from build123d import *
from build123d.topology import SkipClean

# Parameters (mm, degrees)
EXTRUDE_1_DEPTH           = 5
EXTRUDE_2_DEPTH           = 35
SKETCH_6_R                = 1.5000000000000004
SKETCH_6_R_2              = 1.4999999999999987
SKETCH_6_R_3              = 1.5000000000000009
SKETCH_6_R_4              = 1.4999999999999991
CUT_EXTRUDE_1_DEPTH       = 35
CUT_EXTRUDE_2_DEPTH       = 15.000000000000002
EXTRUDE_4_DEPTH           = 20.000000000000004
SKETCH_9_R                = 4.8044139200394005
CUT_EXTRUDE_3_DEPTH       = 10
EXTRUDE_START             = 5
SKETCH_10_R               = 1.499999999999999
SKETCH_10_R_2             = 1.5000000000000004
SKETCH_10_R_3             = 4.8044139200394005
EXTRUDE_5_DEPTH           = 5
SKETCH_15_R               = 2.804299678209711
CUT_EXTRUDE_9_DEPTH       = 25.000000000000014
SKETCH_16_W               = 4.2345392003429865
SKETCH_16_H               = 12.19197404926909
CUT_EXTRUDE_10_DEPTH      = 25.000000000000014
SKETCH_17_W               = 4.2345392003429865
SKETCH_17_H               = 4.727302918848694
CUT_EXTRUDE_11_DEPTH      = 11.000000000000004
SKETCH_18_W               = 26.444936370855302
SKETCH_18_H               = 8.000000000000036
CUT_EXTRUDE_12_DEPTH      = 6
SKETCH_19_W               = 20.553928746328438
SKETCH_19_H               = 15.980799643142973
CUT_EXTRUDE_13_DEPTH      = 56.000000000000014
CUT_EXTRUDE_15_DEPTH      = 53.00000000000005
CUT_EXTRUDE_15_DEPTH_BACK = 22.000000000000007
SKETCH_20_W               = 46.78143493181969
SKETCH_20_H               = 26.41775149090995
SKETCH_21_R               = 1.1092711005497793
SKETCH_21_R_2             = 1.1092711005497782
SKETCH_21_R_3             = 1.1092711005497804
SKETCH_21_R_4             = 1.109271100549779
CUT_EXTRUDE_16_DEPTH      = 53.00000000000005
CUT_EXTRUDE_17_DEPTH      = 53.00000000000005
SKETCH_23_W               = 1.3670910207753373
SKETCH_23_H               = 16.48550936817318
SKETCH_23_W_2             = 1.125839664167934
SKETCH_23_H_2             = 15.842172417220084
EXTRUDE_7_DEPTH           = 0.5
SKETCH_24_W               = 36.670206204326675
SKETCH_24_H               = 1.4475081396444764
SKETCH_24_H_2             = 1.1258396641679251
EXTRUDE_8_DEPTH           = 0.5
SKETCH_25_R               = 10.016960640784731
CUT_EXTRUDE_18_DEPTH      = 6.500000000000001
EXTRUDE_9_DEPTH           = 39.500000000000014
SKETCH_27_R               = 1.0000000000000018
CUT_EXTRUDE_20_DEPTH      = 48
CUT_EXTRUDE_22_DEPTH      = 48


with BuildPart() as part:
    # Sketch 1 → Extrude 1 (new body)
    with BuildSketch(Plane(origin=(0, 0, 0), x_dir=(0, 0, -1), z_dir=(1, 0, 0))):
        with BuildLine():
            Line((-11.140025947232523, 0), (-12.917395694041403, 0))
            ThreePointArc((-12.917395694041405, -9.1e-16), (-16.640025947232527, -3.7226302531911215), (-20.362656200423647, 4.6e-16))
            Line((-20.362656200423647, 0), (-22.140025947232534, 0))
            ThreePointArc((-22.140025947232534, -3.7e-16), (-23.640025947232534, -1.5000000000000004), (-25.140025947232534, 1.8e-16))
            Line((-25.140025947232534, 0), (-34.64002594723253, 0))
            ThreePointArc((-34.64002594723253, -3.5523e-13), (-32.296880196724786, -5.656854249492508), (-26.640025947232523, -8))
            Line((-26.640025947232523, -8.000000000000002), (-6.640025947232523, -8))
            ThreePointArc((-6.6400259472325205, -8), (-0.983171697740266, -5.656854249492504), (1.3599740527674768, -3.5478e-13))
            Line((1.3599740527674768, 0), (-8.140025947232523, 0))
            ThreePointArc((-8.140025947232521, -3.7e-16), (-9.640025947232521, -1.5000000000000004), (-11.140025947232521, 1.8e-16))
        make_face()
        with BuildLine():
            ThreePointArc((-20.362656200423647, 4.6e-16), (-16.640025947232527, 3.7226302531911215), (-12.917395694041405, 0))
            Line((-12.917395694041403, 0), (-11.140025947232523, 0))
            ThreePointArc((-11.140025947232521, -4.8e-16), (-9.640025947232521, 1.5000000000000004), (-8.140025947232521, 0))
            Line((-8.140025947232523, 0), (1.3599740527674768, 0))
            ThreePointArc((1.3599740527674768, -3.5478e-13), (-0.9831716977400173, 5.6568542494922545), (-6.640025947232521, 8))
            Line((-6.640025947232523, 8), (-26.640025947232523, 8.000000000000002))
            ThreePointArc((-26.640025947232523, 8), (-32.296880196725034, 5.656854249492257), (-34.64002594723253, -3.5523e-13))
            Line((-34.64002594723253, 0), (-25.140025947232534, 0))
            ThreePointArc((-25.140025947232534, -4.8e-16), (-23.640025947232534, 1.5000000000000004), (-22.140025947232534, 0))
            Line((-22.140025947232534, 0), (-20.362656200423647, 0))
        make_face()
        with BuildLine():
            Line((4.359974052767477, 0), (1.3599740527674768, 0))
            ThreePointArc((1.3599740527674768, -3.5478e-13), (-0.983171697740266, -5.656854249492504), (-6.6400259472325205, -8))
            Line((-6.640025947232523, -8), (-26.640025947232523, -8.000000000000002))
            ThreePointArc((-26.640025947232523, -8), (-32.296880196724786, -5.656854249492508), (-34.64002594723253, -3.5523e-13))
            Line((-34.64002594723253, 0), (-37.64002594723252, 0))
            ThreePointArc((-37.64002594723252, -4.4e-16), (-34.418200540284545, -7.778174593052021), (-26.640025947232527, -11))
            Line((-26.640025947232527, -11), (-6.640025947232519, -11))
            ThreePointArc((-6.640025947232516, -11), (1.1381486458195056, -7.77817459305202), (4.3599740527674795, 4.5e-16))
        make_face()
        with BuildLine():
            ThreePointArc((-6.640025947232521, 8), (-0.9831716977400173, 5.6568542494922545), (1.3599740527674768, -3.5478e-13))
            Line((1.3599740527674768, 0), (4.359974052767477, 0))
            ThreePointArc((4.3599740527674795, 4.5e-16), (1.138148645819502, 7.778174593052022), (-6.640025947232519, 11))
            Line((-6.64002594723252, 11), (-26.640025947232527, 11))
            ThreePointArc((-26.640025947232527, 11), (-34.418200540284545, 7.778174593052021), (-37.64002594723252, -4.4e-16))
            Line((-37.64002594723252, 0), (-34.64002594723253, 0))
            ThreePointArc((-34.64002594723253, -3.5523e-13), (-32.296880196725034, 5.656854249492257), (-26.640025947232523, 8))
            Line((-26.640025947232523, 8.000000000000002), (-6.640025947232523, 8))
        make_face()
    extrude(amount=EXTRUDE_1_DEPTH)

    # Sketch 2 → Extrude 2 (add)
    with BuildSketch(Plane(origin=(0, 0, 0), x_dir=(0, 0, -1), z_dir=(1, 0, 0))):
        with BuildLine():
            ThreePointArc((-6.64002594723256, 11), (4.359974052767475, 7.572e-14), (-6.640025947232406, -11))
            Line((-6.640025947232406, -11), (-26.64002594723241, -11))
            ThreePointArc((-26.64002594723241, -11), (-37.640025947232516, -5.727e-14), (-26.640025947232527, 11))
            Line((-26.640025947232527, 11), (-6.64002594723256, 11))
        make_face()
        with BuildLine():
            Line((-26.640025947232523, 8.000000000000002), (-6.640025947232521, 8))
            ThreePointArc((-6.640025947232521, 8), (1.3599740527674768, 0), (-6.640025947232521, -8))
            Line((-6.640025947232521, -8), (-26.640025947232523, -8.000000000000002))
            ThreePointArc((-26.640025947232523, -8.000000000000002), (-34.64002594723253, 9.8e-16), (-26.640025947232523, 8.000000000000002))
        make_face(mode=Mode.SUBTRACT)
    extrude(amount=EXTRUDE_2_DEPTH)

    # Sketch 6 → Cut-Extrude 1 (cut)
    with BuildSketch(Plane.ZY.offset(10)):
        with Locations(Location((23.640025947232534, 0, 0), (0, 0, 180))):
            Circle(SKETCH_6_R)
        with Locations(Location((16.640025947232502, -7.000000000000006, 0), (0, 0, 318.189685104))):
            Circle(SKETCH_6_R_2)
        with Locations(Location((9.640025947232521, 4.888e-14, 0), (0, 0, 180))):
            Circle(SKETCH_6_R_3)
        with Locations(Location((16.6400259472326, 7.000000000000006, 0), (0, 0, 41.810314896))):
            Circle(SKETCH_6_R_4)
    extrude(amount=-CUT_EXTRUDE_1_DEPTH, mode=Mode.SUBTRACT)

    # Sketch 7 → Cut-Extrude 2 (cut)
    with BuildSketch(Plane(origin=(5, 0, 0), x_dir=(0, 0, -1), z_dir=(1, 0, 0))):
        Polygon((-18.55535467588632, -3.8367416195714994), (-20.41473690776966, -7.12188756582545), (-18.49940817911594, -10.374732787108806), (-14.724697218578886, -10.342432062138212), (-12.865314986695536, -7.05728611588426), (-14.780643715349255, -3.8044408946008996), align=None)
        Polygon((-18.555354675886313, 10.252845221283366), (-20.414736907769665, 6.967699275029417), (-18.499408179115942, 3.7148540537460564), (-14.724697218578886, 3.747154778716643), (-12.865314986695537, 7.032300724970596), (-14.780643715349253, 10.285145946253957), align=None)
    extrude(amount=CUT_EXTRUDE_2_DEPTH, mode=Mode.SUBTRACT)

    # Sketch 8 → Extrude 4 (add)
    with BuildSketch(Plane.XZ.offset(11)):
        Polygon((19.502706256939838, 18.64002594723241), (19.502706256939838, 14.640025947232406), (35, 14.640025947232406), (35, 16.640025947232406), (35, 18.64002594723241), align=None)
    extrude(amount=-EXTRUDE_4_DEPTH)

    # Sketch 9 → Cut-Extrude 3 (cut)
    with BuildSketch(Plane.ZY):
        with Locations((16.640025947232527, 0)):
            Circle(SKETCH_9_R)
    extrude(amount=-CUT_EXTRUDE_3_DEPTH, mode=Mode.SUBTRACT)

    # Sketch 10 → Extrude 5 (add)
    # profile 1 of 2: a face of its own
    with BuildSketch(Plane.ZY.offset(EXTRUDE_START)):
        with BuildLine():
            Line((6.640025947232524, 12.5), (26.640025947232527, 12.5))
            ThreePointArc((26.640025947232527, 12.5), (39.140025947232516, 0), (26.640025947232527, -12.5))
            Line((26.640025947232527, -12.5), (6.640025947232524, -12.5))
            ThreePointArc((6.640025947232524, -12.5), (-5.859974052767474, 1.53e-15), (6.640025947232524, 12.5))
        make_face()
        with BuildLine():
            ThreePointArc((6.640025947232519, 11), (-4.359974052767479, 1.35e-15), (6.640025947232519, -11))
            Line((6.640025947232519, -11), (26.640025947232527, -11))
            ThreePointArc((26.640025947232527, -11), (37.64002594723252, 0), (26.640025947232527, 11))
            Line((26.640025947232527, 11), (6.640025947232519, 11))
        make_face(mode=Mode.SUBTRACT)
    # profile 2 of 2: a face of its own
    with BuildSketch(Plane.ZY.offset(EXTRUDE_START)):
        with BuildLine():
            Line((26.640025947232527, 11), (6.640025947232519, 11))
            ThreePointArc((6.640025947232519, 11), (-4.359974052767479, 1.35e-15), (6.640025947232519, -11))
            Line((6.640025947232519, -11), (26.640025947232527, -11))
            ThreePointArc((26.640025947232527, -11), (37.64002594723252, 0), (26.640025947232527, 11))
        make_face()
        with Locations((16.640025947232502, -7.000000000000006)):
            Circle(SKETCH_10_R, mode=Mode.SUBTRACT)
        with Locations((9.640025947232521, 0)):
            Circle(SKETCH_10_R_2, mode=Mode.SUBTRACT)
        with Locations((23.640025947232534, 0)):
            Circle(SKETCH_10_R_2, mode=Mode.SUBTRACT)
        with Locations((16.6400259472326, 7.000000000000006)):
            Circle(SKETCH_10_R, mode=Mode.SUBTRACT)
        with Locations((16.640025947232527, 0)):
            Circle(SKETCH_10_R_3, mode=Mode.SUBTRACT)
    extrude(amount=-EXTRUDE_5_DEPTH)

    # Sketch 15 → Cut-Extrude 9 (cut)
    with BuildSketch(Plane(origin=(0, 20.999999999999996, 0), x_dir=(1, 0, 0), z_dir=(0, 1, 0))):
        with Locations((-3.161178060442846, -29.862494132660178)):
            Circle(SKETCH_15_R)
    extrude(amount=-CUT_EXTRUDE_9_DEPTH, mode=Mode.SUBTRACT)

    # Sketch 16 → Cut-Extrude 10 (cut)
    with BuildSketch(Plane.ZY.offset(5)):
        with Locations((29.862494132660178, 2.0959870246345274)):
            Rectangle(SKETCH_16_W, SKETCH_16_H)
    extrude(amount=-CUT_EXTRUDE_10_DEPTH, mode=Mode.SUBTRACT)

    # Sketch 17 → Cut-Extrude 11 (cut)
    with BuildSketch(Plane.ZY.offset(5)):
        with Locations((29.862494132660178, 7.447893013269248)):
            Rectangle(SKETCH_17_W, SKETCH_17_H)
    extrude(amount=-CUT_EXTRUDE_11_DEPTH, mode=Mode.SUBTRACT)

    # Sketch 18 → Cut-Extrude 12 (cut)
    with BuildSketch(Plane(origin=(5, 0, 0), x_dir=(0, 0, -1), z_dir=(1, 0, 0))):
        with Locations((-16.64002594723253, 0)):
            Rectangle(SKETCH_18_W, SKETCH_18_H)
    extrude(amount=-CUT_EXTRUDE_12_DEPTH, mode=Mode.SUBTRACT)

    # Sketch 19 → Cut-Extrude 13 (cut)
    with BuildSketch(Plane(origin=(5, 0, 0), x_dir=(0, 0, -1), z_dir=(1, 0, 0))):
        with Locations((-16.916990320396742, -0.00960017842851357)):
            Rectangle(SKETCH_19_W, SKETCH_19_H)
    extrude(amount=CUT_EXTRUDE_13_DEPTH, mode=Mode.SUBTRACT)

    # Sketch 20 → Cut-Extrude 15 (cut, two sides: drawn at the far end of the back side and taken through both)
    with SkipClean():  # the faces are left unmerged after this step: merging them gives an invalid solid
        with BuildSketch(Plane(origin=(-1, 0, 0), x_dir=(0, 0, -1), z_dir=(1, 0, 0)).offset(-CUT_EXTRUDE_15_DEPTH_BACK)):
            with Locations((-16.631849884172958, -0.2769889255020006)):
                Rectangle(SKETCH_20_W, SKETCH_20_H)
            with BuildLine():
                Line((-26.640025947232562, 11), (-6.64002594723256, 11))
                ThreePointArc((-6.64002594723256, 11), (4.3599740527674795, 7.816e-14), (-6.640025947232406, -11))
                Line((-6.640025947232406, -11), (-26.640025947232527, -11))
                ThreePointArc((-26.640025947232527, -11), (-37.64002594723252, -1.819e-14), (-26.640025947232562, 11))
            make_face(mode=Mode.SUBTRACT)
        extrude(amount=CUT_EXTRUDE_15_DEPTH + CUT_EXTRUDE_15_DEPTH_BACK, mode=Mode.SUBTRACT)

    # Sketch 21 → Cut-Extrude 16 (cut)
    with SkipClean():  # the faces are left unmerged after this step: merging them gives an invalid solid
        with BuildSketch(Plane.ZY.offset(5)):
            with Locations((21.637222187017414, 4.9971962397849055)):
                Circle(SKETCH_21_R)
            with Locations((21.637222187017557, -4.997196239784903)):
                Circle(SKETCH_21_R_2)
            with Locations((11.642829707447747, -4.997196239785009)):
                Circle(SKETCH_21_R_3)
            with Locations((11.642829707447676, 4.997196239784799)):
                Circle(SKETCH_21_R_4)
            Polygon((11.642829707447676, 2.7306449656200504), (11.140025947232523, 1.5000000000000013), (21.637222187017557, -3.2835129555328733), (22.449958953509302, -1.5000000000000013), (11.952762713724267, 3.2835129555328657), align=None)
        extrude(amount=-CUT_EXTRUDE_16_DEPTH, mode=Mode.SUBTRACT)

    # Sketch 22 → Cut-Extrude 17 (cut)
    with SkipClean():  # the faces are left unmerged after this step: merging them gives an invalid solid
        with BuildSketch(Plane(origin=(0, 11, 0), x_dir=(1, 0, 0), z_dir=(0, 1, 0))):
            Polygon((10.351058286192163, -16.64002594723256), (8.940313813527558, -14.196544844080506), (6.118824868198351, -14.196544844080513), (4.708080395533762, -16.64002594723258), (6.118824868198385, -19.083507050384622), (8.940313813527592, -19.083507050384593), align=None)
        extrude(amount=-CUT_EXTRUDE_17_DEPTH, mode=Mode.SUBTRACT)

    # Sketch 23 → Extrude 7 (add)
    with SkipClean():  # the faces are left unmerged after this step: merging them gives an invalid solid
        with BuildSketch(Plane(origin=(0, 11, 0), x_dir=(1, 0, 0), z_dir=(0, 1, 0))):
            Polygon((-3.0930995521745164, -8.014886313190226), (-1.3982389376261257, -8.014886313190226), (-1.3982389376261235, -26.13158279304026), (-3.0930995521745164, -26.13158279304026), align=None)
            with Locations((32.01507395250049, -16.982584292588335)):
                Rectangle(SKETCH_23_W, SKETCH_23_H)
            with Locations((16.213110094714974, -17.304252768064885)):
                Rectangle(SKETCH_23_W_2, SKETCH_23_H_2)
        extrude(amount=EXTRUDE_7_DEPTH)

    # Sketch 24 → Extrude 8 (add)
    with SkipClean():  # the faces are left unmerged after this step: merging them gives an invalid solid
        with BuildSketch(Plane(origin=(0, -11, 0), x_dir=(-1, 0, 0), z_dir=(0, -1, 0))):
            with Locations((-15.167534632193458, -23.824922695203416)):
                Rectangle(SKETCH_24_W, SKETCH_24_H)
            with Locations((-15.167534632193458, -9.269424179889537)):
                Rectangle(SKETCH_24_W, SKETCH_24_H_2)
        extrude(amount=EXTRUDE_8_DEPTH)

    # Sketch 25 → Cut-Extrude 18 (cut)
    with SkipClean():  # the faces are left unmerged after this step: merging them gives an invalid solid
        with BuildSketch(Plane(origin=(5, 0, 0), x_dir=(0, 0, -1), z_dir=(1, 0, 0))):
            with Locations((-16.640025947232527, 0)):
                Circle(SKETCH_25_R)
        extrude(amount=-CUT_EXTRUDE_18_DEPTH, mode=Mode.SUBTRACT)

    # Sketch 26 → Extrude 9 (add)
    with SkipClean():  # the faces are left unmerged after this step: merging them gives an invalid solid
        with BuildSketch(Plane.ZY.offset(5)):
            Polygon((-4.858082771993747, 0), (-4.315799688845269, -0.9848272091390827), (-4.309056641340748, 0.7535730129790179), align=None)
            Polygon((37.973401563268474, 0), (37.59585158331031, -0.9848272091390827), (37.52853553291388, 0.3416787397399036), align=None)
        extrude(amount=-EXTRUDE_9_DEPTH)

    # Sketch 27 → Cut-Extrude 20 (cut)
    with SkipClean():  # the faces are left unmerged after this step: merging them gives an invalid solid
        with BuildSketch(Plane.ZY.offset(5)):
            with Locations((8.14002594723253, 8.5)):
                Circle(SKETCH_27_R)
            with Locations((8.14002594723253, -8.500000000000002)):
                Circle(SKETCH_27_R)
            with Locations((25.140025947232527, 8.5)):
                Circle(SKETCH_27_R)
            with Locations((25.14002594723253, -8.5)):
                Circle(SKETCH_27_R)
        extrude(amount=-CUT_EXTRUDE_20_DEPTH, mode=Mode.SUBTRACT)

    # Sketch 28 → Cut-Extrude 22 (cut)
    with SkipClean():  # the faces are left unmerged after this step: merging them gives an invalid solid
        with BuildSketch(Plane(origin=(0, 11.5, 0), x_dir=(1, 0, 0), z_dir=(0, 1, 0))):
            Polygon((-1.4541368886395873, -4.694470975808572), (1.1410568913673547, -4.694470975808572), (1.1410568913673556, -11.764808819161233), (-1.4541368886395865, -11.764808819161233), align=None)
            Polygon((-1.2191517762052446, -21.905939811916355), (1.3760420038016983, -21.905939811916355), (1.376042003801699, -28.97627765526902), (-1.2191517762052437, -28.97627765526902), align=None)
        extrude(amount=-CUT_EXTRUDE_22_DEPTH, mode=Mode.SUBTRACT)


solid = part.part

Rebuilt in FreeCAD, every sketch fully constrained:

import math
import FreeCAD as App
import Part
import Sketcher
Q = App.Units.Quantity


def add_polygon(sketch, points):
    """Adds a closed chain of lines whose ends are joined by coincident constraints."""
    first, n = sketch.GeometryCount, len(points)
    for a, b in zip(points, points[1:] + points[:1]):
        sketch.addGeometry(Part.LineSegment(App.Vector(*a, 0), App.Vector(*b, 0)), False)
    for i in range(n):
        sketch.addConstraint(Sketcher.Constraint("Coincident", first + i, 2, first + (i + 1) % n, 1))

doc = App.newDocument("Part")
body = doc.addObject("PartDesign::Body", "Body")

sketch1 = body.newObject("Sketcher::SketchObject", "Sketch")
sketch1.AttachmentSupport = (doc.getObject("YZ_Plane"), [""])
sketch1.MapMode = "FlatFace"
sketch1.addGeometry([
    Part.LineSegment(App.Vector(-11, 26.6, 0), App.Vector(-11, 6.6, 0)),
    Part.ArcOfCircle(Part.Circle(App.Vector(0, 6.6, 0), App.Vector(0, 0, 1), 11), math.radians(180), math.radians(360)),
    Part.LineSegment(App.Vector(11, 6.6, 0), App.Vector(11, 26.6, 0)),
    Part.ArcOfCircle(Part.Circle(App.Vector(0, 26.6, 0), App.Vector(0, 0, 1), 11), math.radians(0), math.radians(180)),
    Part.Circle(App.Vector(0, 16.6, 0), App.Vector(0, 0, 1), 3.7),
    Part.Circle(App.Vector(0, 23.6, 0), App.Vector(0, 0, 1), 1.5),
    Part.Circle(App.Vector(0, 9.6, 0), App.Vector(0, 0, 1), 1.5),
], False)
sketch1.addConstraint([
    Sketcher.Constraint("Tangent", 0, 2, 1, 1),
    Sketcher.Constraint("Tangent", 1, 2, 2, 1),
    Sketcher.Constraint("Tangent", 2, 2, 3, 1),
    Sketcher.Constraint("Tangent", 3, 2, 0, 1),
    Sketcher.Constraint("Vertical", 0),
    Sketcher.Constraint("Vertical", 2),
    Sketcher.Constraint("Equal", 5, 6),
    Sketcher.Constraint("PointOnObject", 1, 3, -2),
    Sketcher.Constraint("PointOnObject", 4, 3, -2),
    Sketcher.Constraint("PointOnObject", 5, 3, -2),
    Sketcher.Constraint("PointOnObject", 6, 3, -2),
    Sketcher.Constraint("Diameter", 5, 3.0),
    Sketcher.Constraint("Radius", 1, 11.0),
    Sketcher.Constraint("DistanceY", 0, 2, 0, 1, 20.0),
    Sketcher.Constraint("DistanceY", 4, 3, 3, 3, 10.0),
    Sketcher.Constraint("DistanceY", 5, 3, 3, 3, 3.0),
    Sketcher.Constraint("DistanceY", 1, 3, 6, 3, 3.0),
    Sketcher.Constraint("Diameter", 4, 7.445261),
    Sketcher.Constraint("DistanceY", -1, 1, 1, 3, 6.640026),
])
pad1 = body.newObject("PartDesign::Pad", "Pad")
pad1.Profile = sketch1
pad1.Length = 5

sketch2 = body.newObject("Sketcher::SketchObject", "Sketch001")
sketch2.AttachmentSupport = (doc.getObject("YZ_Plane"), [""])
sketch2.MapMode = "FlatFace"
sketch2.addGeometry([
    Part.ArcOfCircle(Part.Circle(App.Vector(0, 7, 0), App.Vector(0, 0, 1), 11), math.radians(180), math.radians(360)),
    Part.LineSegment(App.Vector(11, 7, 0), App.Vector(11, 27, 0)),
    Part.ArcOfCircle(Part.Circle(App.Vector(0, 27, 0), App.Vector(0, 0, 1), 11), math.radians(0), math.radians(180)),
    Part.LineSegment(App.Vector(-11, 27, 0), App.Vector(-11, 7, 0)),
    Part.LineSegment(App.Vector(8, 27, 0), App.Vector(8, 7, 0)),
    Part.ArcOfCircle(Part.Circle(App.Vector(0, 7, 0), App.Vector(0, 0, 1), 8), math.radians(180), math.radians(360)),
    Part.LineSegment(App.Vector(-8, 7, 0), App.Vector(-8, 27, 0)),
    Part.ArcOfCircle(Part.Circle(App.Vector(0, 27, 0), App.Vector(0, 0, 1), 8), math.radians(0), math.radians(180)),
], False)
sketch2.addConstraint([
    Sketcher.Constraint("Tangent", 0, 2, 1, 1),
    Sketcher.Constraint("Tangent", 1, 2, 2, 1),
    Sketcher.Constraint("Tangent", 2, 2, 3, 1),
    Sketcher.Constraint("Tangent", 3, 2, 0, 1),
    Sketcher.Constraint("Tangent", 4, 2, 5, 2),
    Sketcher.Constraint("Tangent", 5, 1, 6, 1),
    Sketcher.Constraint("Tangent", 6, 2, 7, 2),
    Sketcher.Constraint("Tangent", 7, 1, 4, 1),
    Sketcher.Constraint("Vertical", 1),
    Sketcher.Constraint("Vertical", 3),
    Sketcher.Constraint("Vertical", 4),
    Sketcher.Constraint("Vertical", 6),
    Sketcher.Constraint("Coincident", 5, 3, 0, 3),
    Sketcher.Constraint("PointOnObject", 0, 3, -2),
    Sketcher.Constraint("Horizontal", 7, 3, 1, 2),
    Sketcher.Constraint("Radius", 0, 11.0),
    Sketcher.Constraint("Radius", 5, 8.0),
    Sketcher.Constraint("DistanceY", 1, 1, 1, 2, 20.0),
    Sketcher.Constraint("DistanceY", -1, 1, 0, 3, 6.640026),
])
pad2 = body.newObject("PartDesign::Pad", "Pad001")
pad2.Profile = sketch2
pad2.Length = 35

sketch3 = body.newObject("Sketcher::SketchObject", "Sketch002")
sketch3.AttachmentSupport = (doc.getObject("YZ_Plane"), [""])
sketch3.MapMode = "FlatFace"
sketch3.AttachmentOffset = App.Placement(App.Vector(0, 0, -10), App.Rotation())
sketch3.addGeometry([
    Part.Circle(App.Vector(0, 23.6, 0), App.Vector(0, 0, 1), 1.5),
    Part.Circle(App.Vector(-7, 16.6, 0), App.Vector(0, 0, 1), 1.5),
    Part.Circle(App.Vector(0, 9.6, 0), App.Vector(0, 0, 1), 1.5),
    Part.Circle(App.Vector(7, 16.6, 0), App.Vector(0, 0, 1), 1.5),
], False)
sketch3.addConstraint([
    Sketcher.Constraint("Equal", 0, 1),
    Sketcher.Constraint("Equal", 1, 2),
    Sketcher.Constraint("Equal", 2, 3),
    Sketcher.Constraint("Symmetric", 1, 3, 3, 3, -2),
    Sketcher.Constraint("PointOnObject", 0, 3, -2),
    Sketcher.Constraint("PointOnObject", 2, 3, -2),
    Sketcher.Constraint("Diameter", 0, 3.0),
    Sketcher.Constraint("DistanceX", 1, 3, -1, 1, 7.0),
    Sketcher.Constraint("DistanceY", 1, 3, 0, 3, 7.0),
    Sketcher.Constraint("DistanceY", 2, 3, 1, 3, 7.0),
    Sketcher.Constraint("DistanceY", -1, 1, 0, 3, 23.640026),
])
pocket1 = body.newObject("PartDesign::Pocket", "Pocket")
pocket1.Profile = sketch3
pocket1.Length = 35
pocket1.Reversed = True

sketch4 = body.newObject("Sketcher::SketchObject", "Sketch003")
sketch4.AttachmentSupport = (doc.getObject("YZ_Plane"), [""])
sketch4.MapMode = "FlatFace"
sketch4.AttachmentOffset = App.Placement(App.Vector(0, 0, 5), App.Rotation())
add_polygon(sketch4, [(-3.8, 18.6), (-7.1, 20.4), (-10.4, 18.5), (-10.3, 14.7), (-7.1, 12.9), (-3.8, 14.8)])
add_polygon(sketch4, [(10.3, 18.6), (7, 20.4), (3.7, 18.5), (3.7, 14.7), (7, 12.9), (10.3, 14.8)])
sketch4.addConstraint([
    Sketcher.Constraint("Parallel", 0, 3),
    Sketcher.Constraint("Parallel", 1, 4),
    Sketcher.Constraint("Parallel", 2, 5),
    Sketcher.Constraint("Parallel", 3, 6),
    Sketcher.Constraint("Parallel", 4, 7),
    Sketcher.Constraint("Parallel", 5, 8),
    Sketcher.Constraint("Parallel", 6, 9),
    Sketcher.Constraint("Parallel", 7, 10),
    Sketcher.Constraint("Parallel", 8, 11),
    Sketcher.Constraint("Horizontal", 0, 2, 6, 2),
    Sketcher.Constraint("Horizontal", 1, 2, 7, 2),
    Sketcher.Constraint("Horizontal", 2, 2, 8, 2),
    Sketcher.Constraint("Horizontal", 3, 2, 9, 2),
    Sketcher.Constraint("Horizontal", 4, 2, 10, 2),
    Sketcher.Constraint("Equal", 0, 1),
    Sketcher.Constraint("Equal", 1, 2),
    Sketcher.Constraint("Equal", 2, 3),
    Sketcher.Constraint("DistanceX", -1, 1, 6, 2, 6.967699),
    Sketcher.Constraint("DistanceX", -1, 1, 9, 2, 7.032301),
    Sketcher.Constraint("DistanceX", 1, 2, 2, 2, 0.032301),
    Sketcher.Constraint("Distance", 0, 3.774849),
    Sketcher.Constraint("DistanceY", -1, 1, 1, 2, 18.499408),
    Sketcher.Constraint("DistanceX", 4, 2, -1, 1, 3.804441),
    Sketcher.Constraint("DistanceY", 1, 2, 0, 2, 1.915329),
])
pocket2 = body.newObject("PartDesign::Pocket", "Pocket001")
pocket2.Profile = sketch4
pocket2.Length = 15
pocket2.Reversed = True

sketch5 = body.newObject("Sketcher::SketchObject", "Sketch004")
sketch5.AttachmentSupport = (doc.getObject("XZ_Plane"), [""])
sketch5.MapMode = "FlatFace"
sketch5.AttachmentOffset = App.Placement(App.Vector(0, 0, 11), App.Rotation())
add_polygon(sketch5, [(19.5, 18.6), (19.5, 14.6), (35, 14.6), (35, 18.6)])
sketch5.addConstraint([
    Sketcher.Constraint("Vertical", 0),
    Sketcher.Constraint("Horizontal", 1),
    Sketcher.Constraint("Vertical", 2),
    Sketcher.Constraint("Horizontal", 3),
    Sketcher.Constraint("DistanceY", 0, 2, 0, 1, 4.0),
    Sketcher.Constraint("DistanceX", -1, 1, 1, 2, 35.0),
    Sketcher.Constraint("DistanceX", 1, 1, 1, 2, 15.497294),
    Sketcher.Constraint("DistanceY", -1, 1, 0, 2, 14.640026),
])
pad3 = body.newObject("PartDesign::Pad", "Pad002")
pad3.Profile = sketch5
pad3.Length = 20
pad3.Reversed = True

sketch6 = body.newObject("Sketcher::SketchObject", "Sketch005")
sketch6.AttachmentSupport = (doc.getObject("YZ_Plane"), [""])
sketch6.MapMode = "FlatFace"
sketch6.addGeometry(Part.Circle(App.Vector(0, 16.6, 0), App.Vector(0, 0, 1), 4.8), False)
sketch6.addConstraint([
    Sketcher.Constraint("PointOnObject", 0, 3, -2),
    Sketcher.Constraint("Diameter", 0, 9.608828),
    Sketcher.Constraint("DistanceY", -1, 1, 0, 3, 16.640026),
])
pocket3 = body.newObject("PartDesign::Pocket", "Pocket002")
pocket3.Profile = sketch6
pocket3.Length = 10
pocket3.Reversed = True

sketch7 = body.newObject("Sketcher::SketchObject", "Sketch006")
sketch7.AttachmentSupport = (doc.getObject("YZ_Plane"), [""])
sketch7.MapMode = "FlatFace"
sketch7.AttachmentOffset = App.Placement(App.Vector(0, 0, -5), App.Rotation())
sketch7.addGeometry([
    Part.LineSegment(App.Vector(12.5, 26.6, 0), App.Vector(12.5, 6.6, 0)),
    Part.ArcOfCircle(Part.Circle(App.Vector(0, 6.6, 0), App.Vector(0, 0, 1), 12.5), math.radians(180), math.radians(360)),
    Part.LineSegment(App.Vector(-12.5, 6.6, 0), App.Vector(-12.5, 26.6, 0)),
    Part.ArcOfCircle(Part.Circle(App.Vector(0, 26.6, 0), App.Vector(0, 0, 1), 12.5), math.radians(0), math.radians(180)),
    Part.Circle(App.Vector(7, 16.6, 0), App.Vector(0, 0, 1), 1.5),
    Part.Circle(App.Vector(0, 23.6, 0), App.Vector(0, 0, 1), 1.5),
    Part.Circle(App.Vector(0, 9.6, 0), App.Vector(0, 0, 1), 1.5),
    Part.Circle(App.Vector(0, 16.6, 0), App.Vector(0, 0, 1), 4.8),
    Part.Circle(App.Vector(-7, 16.6, 0), App.Vector(0, 0, 1), 1.5),
], False)
sketch7.addConstraint([
    Sketcher.Constraint("Tangent", 0, 2, 1, 2),
    Sketcher.Constraint("Tangent", 1, 1, 2, 1),
    Sketcher.Constraint("Tangent", 2, 2, 3, 2),
    Sketcher.Constraint("Tangent", 3, 1, 0, 1),
    Sketcher.Constraint("Vertical", 0),
    Sketcher.Constraint("Vertical", 2),
    Sketcher.Constraint("Equal", 4, 5),
    Sketcher.Constraint("Equal", 5, 6),
    Sketcher.Constraint("Equal", 6, 8),
    Sketcher.Constraint("Symmetric", 4, 3, 8, 3, -2),
    Sketcher.Constraint("PointOnObject", 1, 3, -2),
    Sketcher.Constraint("PointOnObject", 5, 3, -2),
    Sketcher.Constraint("PointOnObject", 6, 3, -2),
    Sketcher.Constraint("PointOnObject", 7, 3, -2),
    Sketcher.Constraint("Horizontal", 4, 3, 7, 3),
    Sketcher.Constraint("Diameter", 4, 3.0),
    Sketcher.Constraint("Radius", 1, 12.5),
    Sketcher.Constraint("DistanceY", 0, 2, 0, 1, 20.0),
    Sketcher.Constraint("DistanceX", -1, 1, 4, 3, 7.0),
    Sketcher.Constraint("DistanceY", 4, 3, 3, 3, 10.0),
    Sketcher.Constraint("DistanceY", 5, 3, 3, 3, 3.0),
    Sketcher.Constraint("DistanceY", 1, 3, 6, 3, 3.0),
    Sketcher.Constraint("Diameter", 7, 9.608828),
    Sketcher.Constraint("DistanceY", -1, 1, 1, 3, 6.640026),
])
pad4 = body.newObject("PartDesign::Pad", "Pad003")
pad4.Profile = sketch7
pad4.Length = 5

sketch8 = body.newObject("Sketcher::SketchObject", "Sketch007")
sketch8.AttachmentSupport = (doc.getObject("XZ_Plane"), [""])
sketch8.MapMode = "FlatFace"
sketch8.AttachmentOffset = App.Placement(App.Vector(0, 0, -21), App.Rotation())
sketch8.addGeometry(Part.Circle(App.Vector(-3.2, 29.9, 0), App.Vector(0, 0, 1), 2.8), False)
sketch8.addConstraint([
    Sketcher.Constraint("Diameter", 0, 5.608599),
    Sketcher.Constraint("DistanceX", 0, 3, -1, 1, 3.161178),
    Sketcher.Constraint("DistanceY", -1, 1, 0, 3, 29.862494),
])
pocket4 = body.newObject("PartDesign::Pocket", "Pocket003")
pocket4.Profile = sketch8
pocket4.Length = 25
pocket4.Reversed = True

sketch9 = body.newObject("Sketcher::SketchObject", "Sketch008")
sketch9.AttachmentSupport = (doc.getObject("YZ_Plane"), [""])
sketch9.MapMode = "FlatFace"
sketch9.AttachmentOffset = App.Placement(App.Vector(0, 0, -5), App.Rotation())
add_polygon(sketch9, [(8.2, 27.7), (-4, 27.7), (-4, 32), (8.2, 32)])
sketch9.addConstraint([
    Sketcher.Constraint("Horizontal", 0),
    Sketcher.Constraint("Vertical", 1),
    Sketcher.Constraint("Horizontal", 2),
    Sketcher.Constraint("Vertical", 3),
    Sketcher.Constraint("DistanceX", 0, 2, -1, 1, 4.0),
    Sketcher.Constraint("DistanceY", 1, 1, 1, 2, 4.234539),
    Sketcher.Constraint("DistanceX", 0, 2, 0, 1, 12.191974),
    Sketcher.Constraint("DistanceY", -1, 1, 0, 2, 27.745225),
])
pocket5 = body.newObject("PartDesign::Pocket", "Pocket004")
pocket5.Profile = sketch9
pocket5.Length = 25
pocket5.Reversed = True

sketch10 = body.newObject("Sketcher::SketchObject", "Sketch009")
sketch10.AttachmentSupport = (doc.getObject("YZ_Plane"), [""])
sketch10.MapMode = "FlatFace"
sketch10.AttachmentOffset = App.Placement(App.Vector(0, 0, -5), App.Rotation())
add_polygon(sketch10, [(9.8, 27.7), (5.1, 27.7), (5.1, 32), (9.8, 32)])
sketch10.addConstraint([
    Sketcher.Constraint("Horizontal", 0),
    Sketcher.Constraint("Vertical", 1),
    Sketcher.Constraint("Horizontal", 2),
    Sketcher.Constraint("Vertical", 3),
    Sketcher.Constraint("DistanceY", 1, 1, 1, 2, 4.234539),
    Sketcher.Constraint("DistanceX", 0, 2, 0, 1, 4.727303),
    Sketcher.Constraint("DistanceX", -1, 1, 0, 2, 5.084242),
    Sketcher.Constraint("DistanceY", -1, 1, 0, 2, 27.745225),
])
pocket6 = body.newObject("PartDesign::Pocket", "Pocket005")
pocket6.Profile = sketch10
pocket6.Length = 11
pocket6.Reversed = True

sketch11 = body.newObject("Sketcher::SketchObject", "Sketch010")
sketch11.AttachmentSupport = (doc.getObject("YZ_Plane"), [""])
sketch11.MapMode = "FlatFace"
sketch11.AttachmentOffset = App.Placement(App.Vector(0, 0, 5), App.Rotation())
add_polygon(sketch11, [(4, 30), (-4, 30), (-4, 3), (4, 3)])
sketch11.addConstraint([
    Sketcher.Constraint("Horizontal", 0),
    Sketcher.Constraint("Vertical", 1),
    Sketcher.Constraint("Horizontal", 2),
    Sketcher.Constraint("Vertical", 3),
    Sketcher.Constraint("DistanceX", 0, 2, 0, 1, 8.0),
    Sketcher.Constraint("DistanceX", 0, 2, -1, 1, 4.0),
    Sketcher.Constraint("DistanceY", 1, 2, 1, 1, 26.444936),
    Sketcher.Constraint("DistanceY", -1, 1, 0, 2, 29.862494),
])
pocket7 = body.newObject("PartDesign::Pocket", "Pocket006")
pocket7.Profile = sketch11
pocket7.Length = 6

sketch12 = body.newObject("Sketcher::SketchObject", "Sketch011")
sketch12.AttachmentSupport = (doc.getObject("YZ_Plane"), [""])
sketch12.MapMode = "FlatFace"
sketch12.AttachmentOffset = App.Placement(App.Vector(0, 0, 5), App.Rotation())
add_polygon(sketch12, [(8, 27), (-8, 27), (-8, 7), (8, 7)])
sketch12.addConstraint([
    Sketcher.Constraint("Horizontal", 0),
    Sketcher.Constraint("Vertical", 1),
    Sketcher.Constraint("Horizontal", 2),
    Sketcher.Constraint("Vertical", 3),
    Sketcher.Constraint("DistanceX", 0, 2, -1, 1, 8.0),
    Sketcher.Constraint("DistanceX", 0, 2, 0, 1, 15.9808),
    Sketcher.Constraint("DistanceY", 1, 2, 1, 1, 20.553929),
    Sketcher.Constraint("DistanceY", -1, 1, 0, 2, 27.193955),
])
pocket8 = body.newObject("PartDesign::Pocket", "Pocket007")
pocket8.Profile = sketch12
pocket8.Length = 56
pocket8.Reversed = True

sketch13 = body.newObject("Sketcher::SketchObject", "Sketch012")
sketch13.AttachmentSupport = (doc.getObject("YZ_Plane"), [""])
sketch13.MapMode = "FlatFace"
sketch13.AttachmentOffset = App.Placement(App.Vector(0, 0, -1), App.Rotation())
add_polygon(sketch13, [(13, 40), (-13, 40), (-13, -7), (13, -7)])
sketch13.addGeometry(Part.ArcOfCircle(Part.Circle(App.Vector(0, 27, 0), App.Vector(0, 0, 1), 11), math.radians(0), math.radians(180)), False)
sketch13.addGeometry(Part.LineSegment(App.Vector(11, 27, 0), App.Vector(11, 7, 0)), False)
sketch13.addGeometry(Part.ArcOfCircle(Part.Circle(App.Vector(0, 7, 0), App.Vector(0, 0, 1), 11), math.radians(180), math.radians(360)), False)
sketch13.addGeometry(Part.LineSegment(App.Vector(-11, 7, 0), App.Vector(-11, 27, 0)), False)
sketch13.addConstraint([
    Sketcher.Constraint("Tangent", 4, 1, 5, 1),
    Sketcher.Constraint("Tangent", 5, 2, 6, 2),
    Sketcher.Constraint("Tangent", 6, 1, 7, 1),
    Sketcher.Constraint("Tangent", 7, 2, 4, 2),
    Sketcher.Constraint("Horizontal", 0),
    Sketcher.Constraint("Vertical", 1),
    Sketcher.Constraint("Horizontal", 2),
    Sketcher.Constraint("Vertical", 3),
    Sketcher.Constraint("Vertical", 5),
    Sketcher.Constraint("Vertical", 7),
    Sketcher.Constraint("PointOnObject", 4, 3, -2),
    Sketcher.Constraint("Radius", 4, 11.0),
    Sketcher.Constraint("DistanceY", 5, 2, 5, 1, 20.0),
    Sketcher.Constraint("DistanceX", 0, 2, 0, 1, 26.417751),
    Sketcher.Constraint("DistanceY", 1, 2, 1, 1, 46.781435),
    Sketcher.Constraint("DistanceY", 4, 3, 0, 2, 13.382541),
    Sketcher.Constraint("DistanceY", -1, 1, 4, 3, 26.640026),
    Sketcher.Constraint("DistanceX", 0, 2, -1, 1, 13.485865),
])
pocket9 = body.newObject("PartDesign::Pocket", "Pocket008")
pocket9.Profile = sketch13
pocket9.Type = "ThroughAll"
pocket9.Midplane = True

sketch14 = body.newObject("Sketcher::SketchObject", "Sketch013")
sketch14.AttachmentSupport = (doc.getObject("YZ_Plane"), [""])
sketch14.MapMode = "FlatFace"
sketch14.AttachmentOffset = App.Placement(App.Vector(0, 0, -5), App.Rotation())
sketch14.addGeometry(Part.Circle(App.Vector(5, 21.6, 0), App.Vector(0, 0, 1), 1.1), False)
sketch14.addGeometry(Part.Circle(App.Vector(-5, 21.6, 0), App.Vector(0, 0, 1), 1.1), False)
sketch14.addGeometry(Part.Circle(App.Vector(-5, 11.6, 0), App.Vector(0, 0, 1), 1.1), False)
sketch14.addGeometry(Part.Circle(App.Vector(5, 11.6, 0), App.Vector(0, 0, 1), 1.1), False)
add_polygon(sketch14, [(2.7, 11.6), (1.5, 11.1), (-3.3, 21.6), (-1.5, 22.4), (3.3, 12)])
sketch14.addConstraint([
    Sketcher.Constraint("Equal", 0, 1),
    Sketcher.Constraint("Equal", 1, 2),
    Sketcher.Constraint("Equal", 2, 3),
    Sketcher.Constraint("Symmetric", 0, 3, 1, 3, -2),
    Sketcher.Constraint("Symmetric", 2, 3, 3, 3, -2),
    Sketcher.Constraint("Perpendicular", 5, 6),
    Sketcher.Constraint("Perpendicular", 6, 7),
    Sketcher.Constraint("Horizontal", 1, 3, 5, 2),
    Sketcher.Constraint("Horizontal", 3, 3, 8, 2),
    Sketcher.Constraint("Vertical", 1, 3, 2, 3),
    Sketcher.Constraint("Equal", 5, 7),
    Sketcher.Constraint("DistanceX", 6, 2, 4, 2, 3.0),
    Sketcher.Constraint("DistanceX", -1, 1, 4, 2, 1.5),
    Sketcher.Constraint("Diameter", 0, 2.218542),
    Sketcher.Constraint("DistanceY", -1, 1, 2, 3, 11.64283),
    Sketcher.Constraint("DistanceY", -1, 1, 6, 2, 22.449959),
    Sketcher.Constraint("DistanceX", 5, 2, 0, 3, 8.280709),
    Sketcher.Constraint("DistanceY", 7, 2, 0, 3, 9.684459),
    Sketcher.Constraint("DistanceX", 8, 2, 3, 3, 2.266551),
    Sketcher.Constraint("DistanceX", 2, 3, 8, 2, 7.727841),
])
pocket10 = body.newObject("PartDesign::Pocket", "Pocket009")
pocket10.Profile = sketch14
pocket10.Length = 53
pocket10.Reversed = True

sketch15 = body.newObject("Sketcher::SketchObject", "Sketch014")
sketch15.AttachmentSupport = (doc.getObject("XZ_Plane"), [""])
sketch15.MapMode = "FlatFace"
sketch15.AttachmentOffset = App.Placement(App.Vector(0, 0, -11), App.Rotation())
add_polygon(sketch15, [(10.4, 16.6), (8.9, 14.2), (6.1, 14.2), (4.7, 16.6), (6.1, 19.1), (8.9, 19.1)])
sketch15.addConstraint([
    Sketcher.Constraint("Horizontal", 1),
    Sketcher.Constraint("Horizontal", 4),
    Sketcher.Constraint("Parallel", 0, 3),
    Sketcher.Constraint("Parallel", 2, 5),
    Sketcher.Constraint("Horizontal", 2, 2, 5, 2),
    Sketcher.Constraint("Vertical", 1, 2, 3, 2),
    Sketcher.Constraint("Vertical", 0, 2, 4, 2),
    Sketcher.Constraint("Angle", 0, Q("-120 deg")),
    Sketcher.Constraint("DistanceX", 1, 2, 1, 1, 2.821489),
    Sketcher.Constraint("Distance", 0, 2.821489),
    Sketcher.Constraint("DistanceX", -1, 1, 2, 2, 4.70808),
    Sketcher.Constraint("DistanceY", -1, 1, 0, 2, 14.196545),
])
pocket11 = body.newObject("PartDesign::Pocket", "Pocket010")
pocket11.Profile = sketch15
pocket11.Length = 53
pocket11.Reversed = True

sketch16 = body.newObject("Sketcher::SketchObject", "Sketch015")
sketch16.AttachmentSupport = (doc.getObject("XZ_Plane"), [""])
sketch16.MapMode = "FlatFace"
sketch16.AttachmentOffset = App.Placement(App.Vector(0, 0, -11), App.Rotation())
add_polygon(sketch16, [(-1.4, 8), (-3.1, 8), (-3.1, 26.1), (-1.4, 26.1)])
add_polygon(sketch16, [(31.3, 8.7), (31.3, 25.2), (32.7, 25.2), (32.7, 8.7)])
add_polygon(sketch16, [(15.7, 9.4), (15.7, 25.2), (16.8, 25.2), (16.8, 9.4)])
sketch16.addConstraint([
    Sketcher.Constraint("Horizontal", 0),
    Sketcher.Constraint("Vertical", 1),
    Sketcher.Constraint("Horizontal", 2),
    Sketcher.Constraint("Vertical", 3),
    Sketcher.Constraint("Vertical", 4),
    Sketcher.Constraint("Horizontal", 5),
    Sketcher.Constraint("Vertical", 6),
    Sketcher.Constraint("Horizontal", 7),
    Sketcher.Constraint("Vertical", 8),
    Sketcher.Constraint("Horizontal", 9),
    Sketcher.Constraint("Vertical", 10),
    Sketcher.Constraint("Horizontal", 11),
    Sketcher.Constraint("Horizontal", 5, 2, 8, 2),
    Sketcher.Constraint("DistanceX", 0, 2, 0, 1, 1.694861),
    Sketcher.Constraint("DistanceX", 5, 1, 5, 2, 1.367091),
    Sketcher.Constraint("DistanceX", 9, 1, 9, 2, 1.12584),
    Sketcher.Constraint("DistanceY", 4, 1, 4, 2, 16.485509),
    Sketcher.Constraint("DistanceX", 0, 2, -1, 1, 3.0931),
    Sketcher.Constraint("DistanceX", 9, 2, 4, 2, 14.555499),
    Sketcher.Constraint("DistanceY", 1, 1, 1, 2, 18.116696),
    Sketcher.Constraint("DistanceY", 8, 1, 8, 2, 15.842172),
    Sketcher.Constraint("DistanceX", -1, 1, 4, 2, 31.331528),
    Sketcher.Constraint("DistanceY", -1, 1, 4, 2, 25.225339),
    Sketcher.Constraint("DistanceY", 3, 2, 10, 2, 1.36828),
])
pad5 = body.newObject("PartDesign::Pad", "Pad004")
pad5.Profile = sketch16
pad5.Length = 0.5
pad5.Reversed = True

sketch17 = body.newObject("Sketcher::SketchObject", "Sketch016")
sketch17.AttachmentSupport = (doc.getObject("XZ_Plane"), [""])
sketch17.MapMode = "FlatFace"
sketch17.AttachmentOffset = App.Placement(App.Vector(0, 0, 11), App.Rotation())
add_polygon(sketch17, [(33.5, 23.1), (33.5, 24.5), (-3.2, 24.5), (-3.2, 23.1)])
add_polygon(sketch17, [(33.5, 8.7), (33.5, 9.8), (-3.2, 9.8), (-3.2, 8.7)])
sketch17.addConstraint([
    Sketcher.Constraint("Vertical", 0),
    Sketcher.Constraint("Horizontal", 1),
    Sketcher.Constraint("Vertical", 2),
    Sketcher.Constraint("Horizontal", 3),
    Sketcher.Constraint("Vertical", 4),
    Sketcher.Constraint("Horizontal", 5),
    Sketcher.Constraint("Vertical", 6),
    Sketcher.Constraint("Horizontal", 7),
    Sketcher.Constraint("Vertical", 3, 2, 4, 2),
    Sketcher.Constraint("Vertical", 2, 2, 5, 2),
    Sketcher.Constraint("DistanceY", 0, 1, 0, 2, 1.447508),
    Sketcher.Constraint("DistanceY", 4, 1, 4, 2, 1.12584),
    Sketcher.Constraint("DistanceX", 1, 2, 1, 1, 36.670206),
    Sketcher.Constraint("DistanceX", 1, 2, -1, 1, 3.167568),
    Sketcher.Constraint("DistanceY", -1, 1, 2, 2, 23.101169),
    Sketcher.Constraint("DistanceY", -1, 1, 4, 2, 9.832344),
])
pad6 = body.newObject("PartDesign::Pad", "Pad005")
pad6.Profile = sketch17
pad6.Length = 0.5

sketch18 = body.newObject("Sketcher::SketchObject", "Sketch017")
sketch18.AttachmentSupport = (doc.getObject("YZ_Plane"), [""])
sketch18.MapMode = "FlatFace"
sketch18.AttachmentOffset = App.Placement(App.Vector(0, 0, 5), App.Rotation())
sketch18.addGeometry(Part.Circle(App.Vector(0, 17, 0), App.Vector(0, 0, 1), 10), False)
sketch18.addConstraint([
    Sketcher.Constraint("PointOnObject", 0, 3, -2),
    Sketcher.Constraint("Diameter", 0, 20.033921),
    Sketcher.Constraint("DistanceY", -1, 1, 0, 3, 16.640026),
])
pocket12 = body.newObject("PartDesign::Pocket", "Pocket011")
pocket12.Profile = sketch18
pocket12.Length = 6.5

sketch19 = body.newObject("Sketcher::SketchObject", "Sketch018")
sketch19.AttachmentSupport = (doc.getObject("YZ_Plane"), [""])
sketch19.MapMode = "FlatFace"
sketch19.AttachmentOffset = App.Placement(App.Vector(0, 0, -5), App.Rotation())
add_polygon(sketch19, [(0, -4.9), (-1, -4.3), (0.8, -4.3)])
add_polygon(sketch19, [(-1, 37.6), (0, 38), (0.3, 37.5)])
sketch19.addConstraint([
    Sketcher.Constraint("PointOnObject", 2, 2, -2),
    Sketcher.Constraint("PointOnObject", 3, 2, -2),
    Sketcher.Constraint("Vertical", 0, 2, 5, 2),
    Sketcher.Constraint("DistanceY", 0, 2, -1, 1, 4.3158),
    Sketcher.Constraint("DistanceY", -1, 1, 3, 2, 37.973402),
    Sketcher.Constraint("DistanceX", 0, 2, 1, 2, 1.7384),
    Sketcher.Constraint("DistanceX", -1, 1, 4, 2, 0.341679),
    Sketcher.Constraint("DistanceY", -1, 1, 5, 2, 37.595852),
    Sketcher.Constraint("DistanceY", 1, 2, 3, 2, 42.282458),
    Sketcher.Constraint("DistanceY", 2, 2, 4, 2, 42.386618),
    Sketcher.Constraint("Distance", 0, 1.124258),
    Sketcher.Constraint("Distance", 2, 0.932364),
])
pad7 = body.newObject("PartDesign::Pad", "Pad006")
pad7.Profile = sketch19
pad7.Length = 39.5

sketch20 = body.newObject("Sketcher::SketchObject", "Sketch019")
sketch20.AttachmentSupport = (doc.getObject("YZ_Plane"), [""])
sketch20.MapMode = "FlatFace"
sketch20.AttachmentOffset = App.Placement(App.Vector(0, 0, -5), App.Rotation())
sketch20.addGeometry([
    Part.Circle(App.Vector(8.5, 8.1, 0), App.Vector(0, 0, 1), 1),
    Part.Circle(App.Vector(-8.5, 8.1, 0), App.Vector(0, 0, 1), 1),
    Part.Circle(App.Vector(8.5, 25.1, 0), App.Vector(0, 0, 1), 1),
    Part.Circle(App.Vector(-8.5, 25.1, 0), App.Vector(0, 0, 1), 1),
], False)
sketch20.addConstraint([
    Sketcher.Constraint("Equal", 0, 1),
    Sketcher.Constraint("Equal", 1, 2),
    Sketcher.Constraint("Equal", 2, 3),
    Sketcher.Constraint("Symmetric", 0, 3, 1, 3, -2),
    Sketcher.Constraint("Symmetric", 2, 3, 3, 3, -2),
    Sketcher.Constraint("Vertical", 0, 3, 2, 3),
    Sketcher.Constraint("Diameter", 0, 2.0),
    Sketcher.Constraint("DistanceX", 1, 3, 0, 3, 17.0),
    Sketcher.Constraint("DistanceY", 0, 3, 2, 3, 17.0),
    Sketcher.Constraint("DistanceY", -1, 1, 0, 3, 8.140026),
])
pocket13 = body.newObject("PartDesign::Pocket", "Pocket012")
pocket13.Profile = sketch20
pocket13.Length = 48
pocket13.Reversed = True

sketch21 = body.newObject("Sketcher::SketchObject", "Sketch020")
sketch21.AttachmentSupport = (doc.getObject("XZ_Plane"), [""])
sketch21.MapMode = "FlatFace"
sketch21.AttachmentOffset = App.Placement(App.Vector(0, 0, -11.5), App.Rotation())
add_polygon(sketch21, [(1.1, 4.7), (-1.5, 4.7), (-1.5, 11.8), (1.1, 11.8)])
add_polygon(sketch21, [(1.4, 21.9), (-1.2, 21.9), (-1.2, 29), (1.4, 29)])
sketch21.addConstraint([
    Sketcher.Constraint("Horizontal", 0),
    Sketcher.Constraint("Vertical", 1),
    Sketcher.Constraint("Horizontal", 2),
    Sketcher.Constraint("Vertical", 3),
    Sketcher.Constraint("Horizontal", 4),
    Sketcher.Constraint("Vertical", 5),
    Sketcher.Constraint("Horizontal", 6),
    Sketcher.Constraint("Vertical", 7),
    Sketcher.Constraint("Equal", 2, 4),
    Sketcher.Constraint("Equal", 3, 5),
    Sketcher.Constraint("DistanceX", 0, 2, 0, 1, 2.595194),
    Sketcher.Constraint("DistanceY", 1, 1, 1, 2, 7.070338),
    Sketcher.Constraint("DistanceY", -1, 1, 0, 2, 4.694471),
    Sketcher.Constraint("DistanceX", 4, 2, -1, 1, 1.219152),
    Sketcher.Constraint("DistanceY", -1, 1, 4, 2, 21.90594),
    Sketcher.Constraint("DistanceX", 4, 2, 2, 2, 2.360209),
])
pocket14 = body.newObject("PartDesign::Pocket", "Pocket013")
pocket14.Profile = sketch21
pocket14.Length = 48
pocket14.Reversed = True

doc.recompute()
